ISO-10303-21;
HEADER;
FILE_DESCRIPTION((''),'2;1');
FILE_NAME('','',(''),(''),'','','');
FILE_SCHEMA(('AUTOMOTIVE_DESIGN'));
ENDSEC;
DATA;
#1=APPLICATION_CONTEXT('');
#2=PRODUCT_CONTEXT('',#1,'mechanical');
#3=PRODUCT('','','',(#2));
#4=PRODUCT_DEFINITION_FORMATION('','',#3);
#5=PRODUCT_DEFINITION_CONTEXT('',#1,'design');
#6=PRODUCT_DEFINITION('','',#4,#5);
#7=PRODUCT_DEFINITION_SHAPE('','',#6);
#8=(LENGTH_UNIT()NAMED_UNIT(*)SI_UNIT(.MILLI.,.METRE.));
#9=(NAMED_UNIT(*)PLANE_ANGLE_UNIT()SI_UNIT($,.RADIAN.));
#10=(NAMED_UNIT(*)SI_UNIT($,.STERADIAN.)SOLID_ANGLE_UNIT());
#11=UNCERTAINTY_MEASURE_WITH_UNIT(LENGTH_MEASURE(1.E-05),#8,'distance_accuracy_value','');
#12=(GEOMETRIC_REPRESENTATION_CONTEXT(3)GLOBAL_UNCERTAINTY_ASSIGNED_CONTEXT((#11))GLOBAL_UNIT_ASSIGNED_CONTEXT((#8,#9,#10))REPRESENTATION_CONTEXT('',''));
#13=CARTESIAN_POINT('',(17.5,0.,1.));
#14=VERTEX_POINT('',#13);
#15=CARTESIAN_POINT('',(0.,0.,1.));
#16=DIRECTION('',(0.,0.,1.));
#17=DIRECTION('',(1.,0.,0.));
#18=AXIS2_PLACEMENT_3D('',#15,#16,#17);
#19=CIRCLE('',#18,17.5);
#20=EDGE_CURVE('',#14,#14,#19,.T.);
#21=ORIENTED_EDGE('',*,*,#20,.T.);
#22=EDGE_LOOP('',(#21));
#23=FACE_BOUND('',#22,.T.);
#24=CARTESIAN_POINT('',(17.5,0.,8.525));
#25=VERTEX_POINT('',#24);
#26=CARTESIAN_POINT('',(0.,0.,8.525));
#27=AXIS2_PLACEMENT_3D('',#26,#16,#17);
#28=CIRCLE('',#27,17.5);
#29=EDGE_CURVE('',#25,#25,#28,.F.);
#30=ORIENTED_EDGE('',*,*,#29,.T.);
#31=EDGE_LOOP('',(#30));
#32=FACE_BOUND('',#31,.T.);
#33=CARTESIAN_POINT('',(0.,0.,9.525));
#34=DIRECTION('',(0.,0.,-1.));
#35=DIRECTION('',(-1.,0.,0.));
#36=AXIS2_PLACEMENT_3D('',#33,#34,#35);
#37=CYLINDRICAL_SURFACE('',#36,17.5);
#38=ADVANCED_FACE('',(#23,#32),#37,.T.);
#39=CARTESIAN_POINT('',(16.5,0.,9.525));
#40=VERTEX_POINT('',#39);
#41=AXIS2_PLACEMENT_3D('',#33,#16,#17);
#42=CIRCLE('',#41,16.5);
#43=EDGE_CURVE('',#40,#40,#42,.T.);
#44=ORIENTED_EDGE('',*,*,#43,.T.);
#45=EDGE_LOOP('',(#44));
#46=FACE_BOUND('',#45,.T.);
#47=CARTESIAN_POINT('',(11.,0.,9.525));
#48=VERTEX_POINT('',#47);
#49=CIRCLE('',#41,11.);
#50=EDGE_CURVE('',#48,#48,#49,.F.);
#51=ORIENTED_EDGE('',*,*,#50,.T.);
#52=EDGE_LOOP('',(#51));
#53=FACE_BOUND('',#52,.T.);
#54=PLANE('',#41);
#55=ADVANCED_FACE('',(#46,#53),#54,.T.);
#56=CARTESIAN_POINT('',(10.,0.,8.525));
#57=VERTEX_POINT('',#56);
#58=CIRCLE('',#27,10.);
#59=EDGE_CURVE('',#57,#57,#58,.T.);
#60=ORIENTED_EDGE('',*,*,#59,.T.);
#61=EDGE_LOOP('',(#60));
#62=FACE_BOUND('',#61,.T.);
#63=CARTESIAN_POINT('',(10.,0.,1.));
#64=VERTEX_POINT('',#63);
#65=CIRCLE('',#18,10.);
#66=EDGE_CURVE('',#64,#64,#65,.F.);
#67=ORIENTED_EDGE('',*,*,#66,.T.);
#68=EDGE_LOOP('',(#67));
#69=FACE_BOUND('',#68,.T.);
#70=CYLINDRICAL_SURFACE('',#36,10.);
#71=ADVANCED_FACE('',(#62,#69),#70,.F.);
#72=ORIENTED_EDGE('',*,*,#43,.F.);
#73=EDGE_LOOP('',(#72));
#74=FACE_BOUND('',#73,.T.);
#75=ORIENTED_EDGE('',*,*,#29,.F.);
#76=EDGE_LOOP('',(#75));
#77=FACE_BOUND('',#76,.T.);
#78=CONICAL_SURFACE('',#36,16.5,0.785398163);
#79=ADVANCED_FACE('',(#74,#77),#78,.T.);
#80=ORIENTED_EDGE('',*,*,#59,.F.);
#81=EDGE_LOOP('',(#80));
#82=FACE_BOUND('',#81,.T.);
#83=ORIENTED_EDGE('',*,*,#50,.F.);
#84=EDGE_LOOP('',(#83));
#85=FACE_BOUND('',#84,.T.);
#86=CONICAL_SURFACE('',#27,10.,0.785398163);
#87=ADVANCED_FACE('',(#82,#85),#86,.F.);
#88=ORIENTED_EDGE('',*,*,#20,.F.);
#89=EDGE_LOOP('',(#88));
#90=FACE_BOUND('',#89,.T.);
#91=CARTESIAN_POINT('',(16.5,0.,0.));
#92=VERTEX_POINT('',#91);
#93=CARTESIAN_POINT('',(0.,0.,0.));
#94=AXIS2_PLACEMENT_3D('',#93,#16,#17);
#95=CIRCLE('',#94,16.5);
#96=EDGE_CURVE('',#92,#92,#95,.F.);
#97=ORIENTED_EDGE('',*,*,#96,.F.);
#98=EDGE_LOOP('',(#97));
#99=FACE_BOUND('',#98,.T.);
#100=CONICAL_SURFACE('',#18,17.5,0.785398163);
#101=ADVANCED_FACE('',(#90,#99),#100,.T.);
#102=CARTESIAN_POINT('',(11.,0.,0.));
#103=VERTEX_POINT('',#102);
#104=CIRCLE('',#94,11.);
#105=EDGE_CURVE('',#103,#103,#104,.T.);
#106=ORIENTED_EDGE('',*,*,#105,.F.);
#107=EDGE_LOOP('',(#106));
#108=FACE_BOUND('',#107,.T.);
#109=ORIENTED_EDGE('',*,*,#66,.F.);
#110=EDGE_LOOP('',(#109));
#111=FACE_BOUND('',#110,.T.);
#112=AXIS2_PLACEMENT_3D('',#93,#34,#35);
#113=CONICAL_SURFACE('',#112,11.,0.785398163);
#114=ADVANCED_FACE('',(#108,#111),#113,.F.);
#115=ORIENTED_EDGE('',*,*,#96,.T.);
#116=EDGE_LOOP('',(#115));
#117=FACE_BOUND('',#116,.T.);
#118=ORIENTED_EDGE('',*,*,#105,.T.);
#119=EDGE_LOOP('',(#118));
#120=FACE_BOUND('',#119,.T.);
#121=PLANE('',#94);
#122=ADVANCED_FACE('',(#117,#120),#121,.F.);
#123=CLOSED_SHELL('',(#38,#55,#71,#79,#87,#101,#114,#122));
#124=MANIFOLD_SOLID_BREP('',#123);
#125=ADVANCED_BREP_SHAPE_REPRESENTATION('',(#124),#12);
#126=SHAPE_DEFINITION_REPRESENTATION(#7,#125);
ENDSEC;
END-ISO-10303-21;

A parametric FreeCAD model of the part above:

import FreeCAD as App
import Part
import Sketcher

V = App.Vector
Q = App.Units.Quantity


def edges_at(feature, points):
    """Names of the edges that pass closest to the given points."""
    edges = feature.Shape.Edges
    near = lambda p: min(range(len(edges)), key=lambda i: edges[i].distToShape(Part.Vertex(*p))[0])
    return sorted({f"Edge{near(p) + 1}" for p in points})

doc = App.newDocument("Part")
params = doc.addObject("Spreadsheet::Sheet", "Params")
for row, (alias, value) in enumerate([
    ("sketch1_diameter", "35 mm"),
    ("sketch1_diameter2", "20 mm"),
    ("pad1_length", "9.525 mm"),
    ("chamfer_size", "1 mm"),
], start=1):
    params.set(f"A{row}", alias)
    params.set(f"B{row}", "=" + value)
    params.setAlias(f"B{row}", alias)

body = doc.addObject("PartDesign::Body", "Body")

sketch1 = body.newObject("Sketcher::SketchObject", "Sketch")
sketch1.AttachmentSupport = (doc.getObject("XY_Plane"), [""])
sketch1.MapMode = "FlatFace"
sketch1.addGeometry(Part.Circle(V(0, 0, 0), V(0, 0, 1), 18), False)
sketch1.addGeometry(Part.Circle(V(0, 0, 0), V(0, 0, 1), 10), False)
sketch1.addConstraint(Sketcher.Constraint("Coincident", 0, 3, -1, 1))
sketch1.addConstraint(Sketcher.Constraint("Coincident", 1, 3, -1, 1))
sketch1.addConstraint(Sketcher.Constraint("Diameter", 0, Q("35 mm")))
sketch1.addConstraint(Sketcher.Constraint("Diameter", 1, Q("20 mm")))
sketch1.setExpression("Constraints[2]", "Params.sketch1_diameter")
sketch1.setExpression("Constraints[3]", "Params.sketch1_diameter2")
pad1 = body.newObject("PartDesign::Pad", "Pad")
pad1.Profile = sketch1
pad1.setExpression("Length", "Params.pad1_length")
doc.recompute()

chamfer = body.newObject("PartDesign::Chamfer", "Chamfer")
chamfer.Base = (pad1, edges_at(pad1, [
    (-17.5, 0, 0),
    (-17.5, 0, 9.525),
    (-10, 0, 0),
    (-10, 0, 9.525),
]))
chamfer.setExpression("Size", "Params.chamfer_size")

doc.recompute()
